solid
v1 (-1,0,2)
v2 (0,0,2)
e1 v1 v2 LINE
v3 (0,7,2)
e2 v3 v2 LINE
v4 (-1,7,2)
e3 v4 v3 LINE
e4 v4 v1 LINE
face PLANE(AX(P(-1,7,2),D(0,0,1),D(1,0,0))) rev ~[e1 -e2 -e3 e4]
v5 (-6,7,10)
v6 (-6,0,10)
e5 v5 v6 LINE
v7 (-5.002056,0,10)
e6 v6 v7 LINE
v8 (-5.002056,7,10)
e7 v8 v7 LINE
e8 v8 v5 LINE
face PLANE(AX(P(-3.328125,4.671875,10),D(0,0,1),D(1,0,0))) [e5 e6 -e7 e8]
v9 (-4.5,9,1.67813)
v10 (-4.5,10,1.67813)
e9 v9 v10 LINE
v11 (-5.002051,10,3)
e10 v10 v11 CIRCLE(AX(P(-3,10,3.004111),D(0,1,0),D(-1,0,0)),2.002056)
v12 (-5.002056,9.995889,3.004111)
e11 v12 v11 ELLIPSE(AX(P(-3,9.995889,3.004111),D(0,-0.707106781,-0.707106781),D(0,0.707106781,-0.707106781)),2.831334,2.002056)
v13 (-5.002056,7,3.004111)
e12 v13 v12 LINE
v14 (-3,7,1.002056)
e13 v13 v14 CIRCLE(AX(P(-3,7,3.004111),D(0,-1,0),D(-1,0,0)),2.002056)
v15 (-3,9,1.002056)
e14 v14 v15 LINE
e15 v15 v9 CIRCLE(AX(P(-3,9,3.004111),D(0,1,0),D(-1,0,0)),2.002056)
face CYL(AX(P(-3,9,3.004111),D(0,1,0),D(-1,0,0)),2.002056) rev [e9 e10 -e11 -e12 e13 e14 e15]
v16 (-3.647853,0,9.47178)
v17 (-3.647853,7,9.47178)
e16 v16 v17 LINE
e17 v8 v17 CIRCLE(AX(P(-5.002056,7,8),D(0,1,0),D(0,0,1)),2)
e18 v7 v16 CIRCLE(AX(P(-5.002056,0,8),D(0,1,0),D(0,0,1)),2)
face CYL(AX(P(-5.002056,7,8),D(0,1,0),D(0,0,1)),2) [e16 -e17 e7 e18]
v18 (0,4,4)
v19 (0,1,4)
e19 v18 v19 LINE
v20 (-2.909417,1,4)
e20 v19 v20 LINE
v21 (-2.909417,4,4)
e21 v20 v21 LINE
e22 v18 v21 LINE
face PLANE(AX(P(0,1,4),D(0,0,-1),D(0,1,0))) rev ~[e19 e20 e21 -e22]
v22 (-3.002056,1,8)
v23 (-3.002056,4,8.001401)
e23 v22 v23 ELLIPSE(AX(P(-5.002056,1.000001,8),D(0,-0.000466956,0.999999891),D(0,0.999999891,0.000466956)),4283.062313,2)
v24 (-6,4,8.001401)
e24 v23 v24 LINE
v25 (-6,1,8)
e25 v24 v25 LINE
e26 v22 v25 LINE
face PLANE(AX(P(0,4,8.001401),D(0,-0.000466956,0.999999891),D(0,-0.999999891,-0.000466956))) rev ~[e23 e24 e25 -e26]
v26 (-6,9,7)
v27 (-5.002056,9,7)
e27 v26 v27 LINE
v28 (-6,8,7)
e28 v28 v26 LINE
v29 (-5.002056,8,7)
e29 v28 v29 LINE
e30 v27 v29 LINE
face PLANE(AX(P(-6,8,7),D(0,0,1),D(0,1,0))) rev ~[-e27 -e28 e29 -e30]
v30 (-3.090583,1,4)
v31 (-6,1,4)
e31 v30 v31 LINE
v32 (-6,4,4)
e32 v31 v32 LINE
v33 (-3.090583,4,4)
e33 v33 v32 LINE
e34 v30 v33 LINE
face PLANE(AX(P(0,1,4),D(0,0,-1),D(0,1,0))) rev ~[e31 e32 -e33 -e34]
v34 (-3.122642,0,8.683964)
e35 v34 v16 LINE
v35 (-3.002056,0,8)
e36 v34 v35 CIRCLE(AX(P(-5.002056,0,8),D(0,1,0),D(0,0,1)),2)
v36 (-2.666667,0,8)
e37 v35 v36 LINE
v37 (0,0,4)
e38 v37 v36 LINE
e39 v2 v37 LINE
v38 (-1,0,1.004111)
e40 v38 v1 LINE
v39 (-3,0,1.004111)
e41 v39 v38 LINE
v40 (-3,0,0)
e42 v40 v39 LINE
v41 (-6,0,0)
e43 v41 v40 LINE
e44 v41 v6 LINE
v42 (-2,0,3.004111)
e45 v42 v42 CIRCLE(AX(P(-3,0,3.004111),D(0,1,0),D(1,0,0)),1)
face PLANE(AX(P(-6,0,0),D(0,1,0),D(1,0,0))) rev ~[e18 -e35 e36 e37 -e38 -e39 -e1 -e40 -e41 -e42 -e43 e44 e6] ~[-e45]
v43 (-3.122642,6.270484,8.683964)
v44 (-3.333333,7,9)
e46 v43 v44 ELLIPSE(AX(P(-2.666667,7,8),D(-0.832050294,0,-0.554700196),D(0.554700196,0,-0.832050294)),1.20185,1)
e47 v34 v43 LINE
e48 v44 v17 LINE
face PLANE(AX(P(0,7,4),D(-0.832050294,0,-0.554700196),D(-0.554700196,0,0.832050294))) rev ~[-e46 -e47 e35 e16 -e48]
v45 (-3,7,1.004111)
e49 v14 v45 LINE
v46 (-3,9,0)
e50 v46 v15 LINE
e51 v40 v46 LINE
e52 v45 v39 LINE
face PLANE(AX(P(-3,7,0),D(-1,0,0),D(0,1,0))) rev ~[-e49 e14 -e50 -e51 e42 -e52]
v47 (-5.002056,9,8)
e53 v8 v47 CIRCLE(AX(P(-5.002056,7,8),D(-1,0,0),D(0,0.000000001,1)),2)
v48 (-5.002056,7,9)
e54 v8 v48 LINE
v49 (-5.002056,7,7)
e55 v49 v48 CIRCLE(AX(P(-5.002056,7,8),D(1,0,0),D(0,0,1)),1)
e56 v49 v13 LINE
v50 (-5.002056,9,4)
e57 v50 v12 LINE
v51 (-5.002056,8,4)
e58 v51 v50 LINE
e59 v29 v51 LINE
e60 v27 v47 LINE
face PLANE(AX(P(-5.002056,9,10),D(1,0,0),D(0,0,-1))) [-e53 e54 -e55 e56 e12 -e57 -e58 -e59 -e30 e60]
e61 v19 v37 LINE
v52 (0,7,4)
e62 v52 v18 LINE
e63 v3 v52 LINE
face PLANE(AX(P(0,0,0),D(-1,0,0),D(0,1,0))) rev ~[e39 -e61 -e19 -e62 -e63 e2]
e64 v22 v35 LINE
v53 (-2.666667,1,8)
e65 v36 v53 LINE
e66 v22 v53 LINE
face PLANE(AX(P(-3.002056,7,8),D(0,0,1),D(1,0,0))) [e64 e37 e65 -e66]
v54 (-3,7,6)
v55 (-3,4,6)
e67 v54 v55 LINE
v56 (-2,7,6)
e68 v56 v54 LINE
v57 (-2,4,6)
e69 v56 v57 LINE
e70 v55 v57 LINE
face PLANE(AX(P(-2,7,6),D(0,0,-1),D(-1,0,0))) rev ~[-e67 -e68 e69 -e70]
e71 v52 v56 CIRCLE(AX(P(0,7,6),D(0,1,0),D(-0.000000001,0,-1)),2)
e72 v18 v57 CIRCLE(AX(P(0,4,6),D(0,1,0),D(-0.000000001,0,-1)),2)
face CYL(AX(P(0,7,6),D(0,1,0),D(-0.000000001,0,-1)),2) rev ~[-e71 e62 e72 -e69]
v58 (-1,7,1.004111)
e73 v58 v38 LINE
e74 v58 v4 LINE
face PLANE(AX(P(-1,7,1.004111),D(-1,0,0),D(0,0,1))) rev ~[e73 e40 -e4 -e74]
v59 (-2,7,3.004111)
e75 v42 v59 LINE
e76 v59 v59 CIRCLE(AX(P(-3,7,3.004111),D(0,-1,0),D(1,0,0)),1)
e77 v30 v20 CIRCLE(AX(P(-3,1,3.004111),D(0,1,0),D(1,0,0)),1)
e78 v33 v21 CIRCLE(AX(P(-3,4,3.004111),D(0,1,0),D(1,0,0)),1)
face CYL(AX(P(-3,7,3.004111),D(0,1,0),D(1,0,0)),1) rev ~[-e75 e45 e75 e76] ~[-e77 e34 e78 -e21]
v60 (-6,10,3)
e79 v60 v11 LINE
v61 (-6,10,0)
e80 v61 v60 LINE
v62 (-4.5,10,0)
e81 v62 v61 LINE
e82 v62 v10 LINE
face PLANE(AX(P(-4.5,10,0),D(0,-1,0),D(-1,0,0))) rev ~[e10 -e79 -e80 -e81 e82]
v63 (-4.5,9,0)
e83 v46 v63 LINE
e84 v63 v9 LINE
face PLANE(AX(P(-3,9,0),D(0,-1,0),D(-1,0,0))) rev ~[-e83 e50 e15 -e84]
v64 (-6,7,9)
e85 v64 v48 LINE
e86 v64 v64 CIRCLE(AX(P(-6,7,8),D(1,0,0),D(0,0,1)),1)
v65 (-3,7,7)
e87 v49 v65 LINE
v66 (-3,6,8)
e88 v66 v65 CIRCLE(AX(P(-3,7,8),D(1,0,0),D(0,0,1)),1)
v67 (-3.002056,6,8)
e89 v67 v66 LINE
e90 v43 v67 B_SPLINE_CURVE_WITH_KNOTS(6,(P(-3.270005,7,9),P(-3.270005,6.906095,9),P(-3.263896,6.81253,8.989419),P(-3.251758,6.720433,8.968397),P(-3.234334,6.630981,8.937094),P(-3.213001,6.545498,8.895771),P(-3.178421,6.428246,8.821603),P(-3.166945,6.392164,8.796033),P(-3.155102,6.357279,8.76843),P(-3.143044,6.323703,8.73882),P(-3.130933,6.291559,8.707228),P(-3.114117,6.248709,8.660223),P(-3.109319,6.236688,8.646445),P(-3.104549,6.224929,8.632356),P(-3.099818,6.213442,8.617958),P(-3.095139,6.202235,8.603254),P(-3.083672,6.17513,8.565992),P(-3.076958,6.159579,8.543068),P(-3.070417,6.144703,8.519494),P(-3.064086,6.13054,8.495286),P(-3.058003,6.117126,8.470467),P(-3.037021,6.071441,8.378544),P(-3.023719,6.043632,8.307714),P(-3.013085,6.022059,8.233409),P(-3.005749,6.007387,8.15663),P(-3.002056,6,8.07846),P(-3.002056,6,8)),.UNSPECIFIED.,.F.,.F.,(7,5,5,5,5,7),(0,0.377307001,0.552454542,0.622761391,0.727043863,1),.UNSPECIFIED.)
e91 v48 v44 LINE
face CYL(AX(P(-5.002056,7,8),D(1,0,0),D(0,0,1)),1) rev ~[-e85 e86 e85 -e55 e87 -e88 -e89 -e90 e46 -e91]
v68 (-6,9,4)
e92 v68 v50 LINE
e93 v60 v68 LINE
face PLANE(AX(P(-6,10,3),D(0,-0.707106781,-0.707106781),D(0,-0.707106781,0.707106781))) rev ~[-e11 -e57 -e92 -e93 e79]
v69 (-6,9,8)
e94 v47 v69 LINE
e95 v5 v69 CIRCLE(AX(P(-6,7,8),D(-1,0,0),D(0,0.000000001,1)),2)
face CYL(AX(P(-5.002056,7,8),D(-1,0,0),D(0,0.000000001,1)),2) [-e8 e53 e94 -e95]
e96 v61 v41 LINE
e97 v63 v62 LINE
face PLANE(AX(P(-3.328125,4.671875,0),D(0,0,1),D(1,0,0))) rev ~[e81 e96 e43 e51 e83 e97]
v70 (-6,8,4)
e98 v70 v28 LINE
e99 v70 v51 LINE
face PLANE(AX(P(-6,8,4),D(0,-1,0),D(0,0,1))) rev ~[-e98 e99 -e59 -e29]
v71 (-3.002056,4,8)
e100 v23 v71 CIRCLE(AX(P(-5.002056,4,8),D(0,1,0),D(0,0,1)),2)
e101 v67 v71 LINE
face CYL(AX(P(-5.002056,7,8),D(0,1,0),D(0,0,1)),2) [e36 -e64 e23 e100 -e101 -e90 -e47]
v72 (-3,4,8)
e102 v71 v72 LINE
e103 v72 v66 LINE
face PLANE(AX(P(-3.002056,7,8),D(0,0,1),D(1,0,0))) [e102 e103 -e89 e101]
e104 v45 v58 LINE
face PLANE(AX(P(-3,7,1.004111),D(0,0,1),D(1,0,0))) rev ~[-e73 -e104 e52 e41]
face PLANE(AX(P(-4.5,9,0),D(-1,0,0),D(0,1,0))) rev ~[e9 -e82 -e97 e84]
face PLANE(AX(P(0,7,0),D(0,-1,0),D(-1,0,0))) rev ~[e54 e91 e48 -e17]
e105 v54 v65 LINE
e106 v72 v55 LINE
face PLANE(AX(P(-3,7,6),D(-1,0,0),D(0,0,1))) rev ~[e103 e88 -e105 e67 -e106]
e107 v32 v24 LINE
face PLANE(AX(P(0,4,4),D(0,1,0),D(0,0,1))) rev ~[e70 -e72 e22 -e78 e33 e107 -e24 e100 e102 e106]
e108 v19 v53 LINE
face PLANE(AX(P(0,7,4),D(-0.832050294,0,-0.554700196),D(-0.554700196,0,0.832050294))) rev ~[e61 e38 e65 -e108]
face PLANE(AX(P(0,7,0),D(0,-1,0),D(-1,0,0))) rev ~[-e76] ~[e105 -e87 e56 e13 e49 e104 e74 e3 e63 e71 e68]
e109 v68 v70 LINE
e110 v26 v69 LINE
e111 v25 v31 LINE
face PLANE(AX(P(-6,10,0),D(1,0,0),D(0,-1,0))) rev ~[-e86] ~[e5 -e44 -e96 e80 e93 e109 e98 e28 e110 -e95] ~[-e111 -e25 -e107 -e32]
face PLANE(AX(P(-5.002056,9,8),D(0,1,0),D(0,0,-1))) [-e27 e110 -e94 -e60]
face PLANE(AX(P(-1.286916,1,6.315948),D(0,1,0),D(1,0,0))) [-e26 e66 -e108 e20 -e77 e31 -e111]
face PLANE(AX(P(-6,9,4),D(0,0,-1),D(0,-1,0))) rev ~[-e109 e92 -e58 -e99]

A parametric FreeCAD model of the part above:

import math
import FreeCAD as App
import Part
import Sketcher
Q = App.Units.Quantity

doc = App.newDocument("Part")
body = doc.addObject("PartDesign::Body", "Body")
body.AllowCompound = True

# Sketch on XY plane
sketch1 = body.newObject("Sketcher::SketchObject", "Sketch")
sketch1.AttachmentSupport = (doc.getObject("XY_Plane"), [""])
sketch1.MapMode = "FlatFace"
sketch1.addGeometry(Part.LineSegment(App.Vector(0, 0, 0), App.Vector(0, 7, 0)), False)
sketch1.addGeometry(Part.LineSegment(App.Vector(0, 7, 0), App.Vector(-3, 7, 0)), False)
sketch1.addGeometry(Part.LineSegment(App.Vector(-3, 7, 0), App.Vector(-3, 9, 0)), False)
sketch1.addGeometry(Part.LineSegment(App.Vector(-3, 9, 0), App.Vector(-4.5, 9, 0)), False)
sketch1.addGeometry(Part.LineSegment(App.Vector(-4.5, 9, 0), App.Vector(-4.5, 10, 0)), False)
sketch1.addGeometry(Part.LineSegment(App.Vector(-4.5, 10, 0), App.Vector(-6, 10, 0)), False)
sketch1.addGeometry(Part.LineSegment(App.Vector(-6, 10, 0), App.Vector(-6, 0, 0)), False)
sketch1.addGeometry(Part.LineSegment(App.Vector(-6, 0, 0), App.Vector(0, 0, 0)), False)
sketch1.addConstraint(Sketcher.Constraint("Coincident", 0, 2, 1, 1))
sketch1.addConstraint(Sketcher.Constraint("Coincident", 1, 2, 2, 1))
sketch1.addConstraint(Sketcher.Constraint("Coincident", 2, 2, 3, 1))
sketch1.addConstraint(Sketcher.Constraint("Coincident", 3, 2, 4, 1))
sketch1.addConstraint(Sketcher.Constraint("Coincident", 4, 2, 5, 1))
sketch1.addConstraint(Sketcher.Constraint("Coincident", 5, 2, 6, 1))
sketch1.addConstraint(Sketcher.Constraint("Coincident", 6, 2, 7, 1))
sketch1.addConstraint(Sketcher.Constraint("Coincident", 7, 2, 0, 1))
sketch1.addConstraint(Sketcher.Constraint("Vertical", 0))
sketch1.addConstraint(Sketcher.Constraint("Horizontal", 1))
sketch1.addConstraint(Sketcher.Constraint("Vertical", 2))
sketch1.addConstraint(Sketcher.Constraint("Horizontal", 3))
sketch1.addConstraint(Sketcher.Constraint("Vertical", 4))
sketch1.addConstraint(Sketcher.Constraint("Horizontal", 5))
sketch1.addConstraint(Sketcher.Constraint("Vertical", 6))
sketch1.addConstraint(Sketcher.Constraint("Horizontal", 7))
sketch1.addConstraint(Sketcher.Constraint("Coincident", 7, 2, -1, 1))
sketch1.addConstraint(Sketcher.Constraint("Equal", 3, 5))
sketch1.addConstraint(Sketcher.Constraint("DistanceX", 1, 2, 1, 1, Q("3 mm")))
sketch1.addConstraint(Sketcher.Constraint("DistanceX", 7, 1, 7, 2, Q("6 mm")))
sketch1.addConstraint(Sketcher.Constraint("DistanceY", 0, 1, 0, 2, Q("7 mm")))
sketch1.addConstraint(Sketcher.Constraint("DistanceY", 2, 1, 2, 2, Q("2 mm")))
sketch1.addConstraint(Sketcher.Constraint("DistanceY", 4, 1, 4, 2, Q("1 mm")))
pad1 = body.newObject("PartDesign::Pad", "Pad")
pad1.Profile = sketch1
pad1.Length = 10

# Sketch on XZ plane
sketch2 = body.newObject("Sketcher::SketchObject", "Sketch001")
sketch2.AttachmentSupport = (doc.getObject("XZ_Plane"), [""])
sketch2.MapMode = "FlatFace"
sketch2.AttachmentOffset = App.Placement(App.Vector(0, 0, -7), App.Rotation())
sketch2.addGeometry(Part.LineSegment(App.Vector(-3, 0, 0), App.Vector(-3, 1, 0)), False)
sketch2.addGeometry(Part.LineSegment(App.Vector(-3, 1, 0), App.Vector(-1, 1, 0)), False)
sketch2.addGeometry(Part.LineSegment(App.Vector(-1, 1, 0), App.Vector(-1, 2, 0)), False)
sketch2.addGeometry(Part.LineSegment(App.Vector(-1, 2, 0), App.Vector(0, 2, 0)), False)
sketch2.addGeometry(Part.LineSegment(App.Vector(0, 2, 0), App.Vector(0, 0, 0)), False)
sketch2.addGeometry(Part.LineSegment(App.Vector(0, 0, 0), App.Vector(-3, 0, 0)), False)
sketch2.addConstraint(Sketcher.Constraint("Coincident", 0, 2, 1, 1))
sketch2.addConstraint(Sketcher.Constraint("Coincident", 1, 2, 2, 1))
sketch2.addConstraint(Sketcher.Constraint("Coincident", 2, 2, 3, 1))
sketch2.addConstraint(Sketcher.Constraint("Coincident", 3, 2, 4, 1))
sketch2.addConstraint(Sketcher.Constraint("Coincident", 4, 2, 5, 1))
sketch2.addConstraint(Sketcher.Constraint("Coincident", 5, 2, 0, 1))
sketch2.addConstraint(Sketcher.Constraint("Vertical", 0))
sketch2.addConstraint(Sketcher.Constraint("Horizontal", 1))
sketch2.addConstraint(Sketcher.Constraint("Vertical", 2))
sketch2.addConstraint(Sketcher.Constraint("Horizontal", 3))
sketch2.addConstraint(Sketcher.Constraint("Vertical", 4))
sketch2.addConstraint(Sketcher.Constraint("Horizontal", 5))
sketch2.addConstraint(Sketcher.Constraint("Coincident", 4, 2, -1, 1))
sketch2.addConstraint(Sketcher.Constraint("Equal", 1, 4))
sketch2.addConstraint(Sketcher.Constraint("DistanceX", 1, 1, 1, 2, Q("2 mm")))
sketch2.addConstraint(Sketcher.Constraint("DistanceX", 3, 1, 3, 2, Q("1 mm")))
sketch2.addConstraint(Sketcher.Constraint("DistanceY", 0, 1, 0, 2, Q("1.004111 mm")))
pocket1 = body.newObject("PartDesign::Pocket", "Pocket")
pocket1.Profile = sketch2
pocket1.Type = "ThroughAll"
pocket1.Reversed = True

# Sketch on XZ plane
sketch3 = body.newObject("Sketcher::SketchObject", "Sketch002")
sketch3.AttachmentSupport = (doc.getObject("XZ_Plane"), [""])
sketch3.MapMode = "FlatFace"
sketch3.AttachmentOffset = App.Placement(App.Vector(0, 0, -7), App.Rotation())
sketch3.addGeometry(Part.Circle(App.Vector(-3, 3, 0), App.Vector(0, 0, 1), 1), False)
sketch3.addConstraint(Sketcher.Constraint("Diameter", 0, Q("2 mm")))
sketch3.addConstraint(Sketcher.Constraint("DistanceX", 0, 3, -1, 1, Q("3 mm")))
sketch3.addConstraint(Sketcher.Constraint("DistanceY", -1, 1, 0, 3, Q("3.004111 mm")))
pocket2 = body.newObject("PartDesign::Pocket", "Pocket001")
pocket2.Profile = sketch3
pocket2.Length = 15
pocket2.Midplane = True

# Sketch on XZ plane
sketch4 = body.newObject("Sketcher::SketchObject", "Sketch003")
sketch4.AttachmentSupport = (doc.getObject("XZ_Plane"), [""])
sketch4.MapMode = "FlatFace"
sketch4.AttachmentOffset = App.Placement(App.Vector(0, 0, -9), App.Rotation())
sketch4.addGeometry(Part.LineSegment(App.Vector(-3, 2, 0), App.Vector(-3, 1, 0)), False)
sketch4.addGeometry(Part.ArcOfCircle(Part.Circle(App.Vector(-3, 3, 0), App.Vector(0, 0, 1), 2), math.radians(180), math.radians(270)), False)
sketch4.addGeometry(Part.LineSegment(App.Vector(-5, 3, 0), App.Vector(-5, 10, 0)), False)
sketch4.addGeometry(Part.LineSegment(App.Vector(-5, 10, 0), App.Vector(-3, 10, 0)), False)
sketch4.addGeometry(Part.LineSegment(App.Vector(-3, 10, 0), App.Vector(-3, 4, 0)), False)
sketch4.addGeometry(Part.ArcOfCircle(Part.Circle(App.Vector(-3, 3, 0), App.Vector(0, 0, 1), 1), math.radians(90), math.radians(270)), False)
sketch4.addConstraint(Sketcher.Constraint("Coincident", 0, 2, 1, 2))
sketch4.addConstraint(Sketcher.Constraint("Tangent", 1, 1, 2, 1))
sketch4.addConstraint(Sketcher.Constraint("Coincident", 2, 2, 3, 1))
sketch4.addConstraint(Sketcher.Constraint("Coincident", 3, 2, 4, 1))
sketch4.addConstraint(Sketcher.Constraint("Coincident", 4, 2, 5, 1))
sketch4.addConstraint(Sketcher.Constraint("Coincident", 5, 2, 0, 1))
sketch4.addConstraint(Sketcher.Constraint("Vertical", 0))
sketch4.addConstraint(Sketcher.Constraint("Vertical", 2))
sketch4.addConstraint(Sketcher.Constraint("Horizontal", 3))
sketch4.addConstraint(Sketcher.Constraint("Vertical", 4))
sketch4.addConstraint(Sketcher.Constraint("Coincident", 5, 3, 1, 3))
sketch4.addConstraint(Sketcher.Constraint("Vertical", 5, 3, 0, 2))
sketch4.addConstraint(Sketcher.Constraint("Vertical", 0, 2, 3, 2))
sketch4.addConstraint(Sketcher.Constraint("Radius", 5, Q("1 mm")))
sketch4.addConstraint(Sketcher.Constraint("DistanceX", 1, 3, -1, 1, Q("3 mm")))
sketch4.addConstraint(Sketcher.Constraint("DistanceY", -1, 1, 2, 2, Q("10 mm")))
sketch4.addConstraint(Sketcher.Constraint("Radius", 1, Q("2.002056 mm")))
sketch4.addConstraint(Sketcher.Constraint("DistanceY", 2, 1, 2, 2, Q("6.995889 mm")))
pocket3 = body.newObject("PartDesign::Pocket", "Pocket002")
pocket3.Profile = sketch4
pocket3.Length = 4
pocket3.Midplane = True

# Sketch on YZ plane
sketch5 = body.newObject("Sketcher::SketchObject", "Sketch004")
sketch5.AttachmentSupport = (doc.getObject("YZ_Plane"), [""])
sketch5.MapMode = "FlatFace"
sketch5.AttachmentOffset = App.Placement(App.Vector(0, 0, -6), App.Rotation())
sketch5.addGeometry(Part.LineSegment(App.Vector(10, 3, 0), App.Vector(9, 4, 0)), False)
sketch5.addGeometry(Part.LineSegment(App.Vector(9, 4, 0), App.Vector(8, 4, 0)), False)
sketch5.addGeometry(Part.LineSegment(App.Vector(8, 4, 0), App.Vector(8, 7, 0)), False)
sketch5.addGeometry(Part.LineSegment(App.Vector(8, 7, 0), App.Vector(10, 7, 0)), False)
sketch5.addGeometry(Part.LineSegment(App.Vector(10, 7, 0), App.Vector(10, 3, 0)), False)
sketch5.addConstraint(Sketcher.Constraint("Coincident", 0, 2, 1, 1))
sketch5.addConstraint(Sketcher.Constraint("Coincident", 1, 2, 2, 1))
sketch5.addConstraint(Sketcher.Constraint("Coincident", 2, 2, 3, 1))
sketch5.addConstraint(Sketcher.Constraint("Coincident", 3, 2, 4, 1))
sketch5.addConstraint(Sketcher.Constraint("Coincident", 4, 2, 0, 1))
sketch5.addConstraint(Sketcher.Constraint("Horizontal", 1))
sketch5.addConstraint(Sketcher.Constraint("Vertical", 2))
sketch5.addConstraint(Sketcher.Constraint("Horizontal", 3))
sketch5.addConstraint(Sketcher.Constraint("Vertical", 4))
sketch5.addConstraint(Sketcher.Constraint("DistanceX", 1, 2, 1, 1, Q("1 mm")))
sketch5.addConstraint(Sketcher.Constraint("DistanceX", 3, 1, 3, 2, Q("2 mm")))
sketch5.addConstraint(Sketcher.Constraint("DistanceY", 2, 1, 2, 2, Q("3 mm")))
sketch5.addConstraint(Sketcher.Constraint("DistanceY", 4, 2, 4, 1, Q("4 mm")))
sketch5.addConstraint(Sketcher.Constraint("DistanceX", -1, 1, 0, 2, Q("9 mm")))
sketch5.addConstraint(Sketcher.Constraint("DistanceY", -1, 1, 0, 2, Q("4 mm")))
pocket4 = body.newObject("PartDesign::Pocket", "Pocket003")
pocket4.Profile = sketch5
pocket4.Length = 4
pocket4.Reversed = True

# Sketch on YZ plane
sketch6 = body.newObject("Sketcher::SketchObject", "Sketch005")
sketch6.AttachmentSupport = (doc.getObject("YZ_Plane"), [""])
sketch6.MapMode = "FlatFace"
sketch6.AttachmentOffset = App.Placement(App.Vector(0, 0, -5.002056), App.Rotation())
sketch6.addGeometry(Part.LineSegment(App.Vector(9, 8, 0), App.Vector(9, 7, 0)), False)
sketch6.addGeometry(Part.LineSegment(App.Vector(9, 7, 0), App.Vector(10, 7, 0)), False)
sketch6.addGeometry(Part.LineSegment(App.Vector(10, 7, 0), App.Vector(10, 10, 0)), False)
sketch6.addGeometry(Part.LineSegment(App.Vector(10, 10, 0), App.Vector(7, 10, 0)), False)
sketch6.addGeometry(Part.ArcOfCircle(Part.Circle(App.Vector(7, 8, 0), App.Vector(0, 0, 1), 2), math.radians(0), math.radians(90)), False)
sketch6.addGeometry(Part.Circle(App.Vector(7, 8, 0), App.Vector(0, 0, 1), 1), False)
sketch6.addConstraint(Sketcher.Constraint("Coincident", 0, 2, 1, 1))
sketch6.addConstraint(Sketcher.Constraint("Coincident", 1, 2, 2, 1))
sketch6.addConstraint(Sketcher.Constraint("Coincident", 2, 2, 3, 1))
sketch6.addConstraint(Sketcher.Constraint("Tangent", 3, 2, 4, 2))
sketch6.addConstraint(Sketcher.Constraint("Tangent", 4, 1, 0, 1))
sketch6.addConstraint(Sketcher.Constraint("Vertical", 0))
sketch6.addConstraint(Sketcher.Constraint("Horizontal", 1))
sketch6.addConstraint(Sketcher.Constraint("Vertical", 2))
sketch6.addConstraint(Sketcher.Constraint("Horizontal", 3))
sketch6.addConstraint(Sketcher.Constraint("Coincident", 5, 3, 4, 3))
sketch6.addConstraint(Sketcher.Constraint("Equal", 1, 0))
sketch6.addConstraint(Sketcher.Constraint("Diameter", 5, Q("2 mm")))
sketch6.addConstraint(Sketcher.Constraint("Radius", 4, Q("2 mm")))
sketch6.addConstraint(Sketcher.Constraint("DistanceX", 1, 1, 1, 2, Q("1 mm")))
sketch6.addConstraint(Sketcher.Constraint("DistanceX", -1, 1, 4, 3, Q("7 mm")))
sketch6.addConstraint(Sketcher.Constraint("DistanceY", -1, 1, 4, 3, Q("8 mm")))
pocket5 = body.newObject("PartDesign::Pocket", "Pocket004")
pocket5.Profile = sketch6
pocket5.Length = 14
pocket5.Midplane = True

# Sketch on XZ plane
sketch7 = body.newObject("Sketcher::SketchObject", "Sketch006")
sketch7.AttachmentSupport = (doc.getObject("XZ_Plane"), [""])
sketch7.MapMode = "FlatFace"
sketch7.AttachmentOffset = App.Placement(App.Vector(0, 0, -7), App.Rotation())
sketch7.addGeometry(Part.LineSegment(App.Vector(-2, 6, 0), App.Vector(-3, 6, 0)), False)
sketch7.addGeometry(Part.LineSegment(App.Vector(-3, 6, 0), App.Vector(-3, 8, 0)), False)
sketch7.addGeometry(Part.LineSegment(App.Vector(-3, 8, 0), App.Vector(0, 8, 0)), False)
sketch7.addGeometry(Part.LineSegment(App.Vector(0, 8, 0), App.Vector(0, 4, 0)), False)
sketch7.addGeometry(Part.ArcOfCircle(Part.Circle(App.Vector(0, 6, 0), App.Vector(0, 0, 1), 2), math.radians(-180), math.radians(-90)), False)
sketch7.addConstraint(Sketcher.Constraint("Coincident", 0, 2, 1, 1))
sketch7.addConstraint(Sketcher.Constraint("Coincident", 1, 2, 2, 1))
sketch7.addConstraint(Sketcher.Constraint("Coincident", 2, 2, 3, 1))
sketch7.addConstraint(Sketcher.Constraint("Coincident", 3, 2, 4, 2))
sketch7.addConstraint(Sketcher.Constraint("Coincident", 4, 1, 0, 1))
sketch7.addConstraint(Sketcher.Constraint("Horizontal", 0))
sketch7.addConstraint(Sketcher.Constraint("Vertical", 1))
sketch7.addConstraint(Sketcher.Constraint("Vertical", 3))
sketch7.addConstraint(Sketcher.Constraint("PointOnObject", 4, 3, -2))
sketch7.addConstraint(Sketcher.Constraint("PointOnObject", 2, 2, -2))
sketch7.addConstraint(Sketcher.Constraint("Horizontal", 4, 3, 0, 2))
sketch7.addConstraint(Sketcher.Constraint("Radius", 4, Q("2 mm")))
sketch7.addConstraint(Sketcher.Constraint("DistanceX", 0, 2, 0, 1, Q("1 mm")))
sketch7.addConstraint(Sketcher.Constraint("DistanceY", 3, 2, 3, 1, Q("4 mm")))
sketch7.addConstraint(Sketcher.Constraint("DistanceY", -1, 1, 4, 3, Q("6 mm")))
sketch7.addConstraint(Sketcher.Constraint("DistanceY", 1, 1, 1, 2, Q("2.001401 mm")))
pocket6 = body.newObject("PartDesign::Pocket", "Pocket005")
pocket6.Profile = sketch7
pocket6.Length = 6
pocket6.Reversed = True

# Sketch on YZ plane
sketch8 = body.newObject("Sketcher::SketchObject", "Sketch007")
sketch8.AttachmentSupport = (doc.getObject("YZ_Plane"), [""])
sketch8.MapMode = "FlatFace"
sketch8.addGeometry(Part.LineSegment(App.Vector(1, 4, 0), App.Vector(4, 4, 0)), False)
sketch8.addGeometry(Part.LineSegment(App.Vector(4, 4, 0), App.Vector(4, 8, 0)), False)
sketch8.addGeometry(Part.LineSegment(App.Vector(4, 8, 0), App.Vector(1, 8, 0)), False)
sketch8.addGeometry(Part.LineSegment(App.Vector(1, 8, 0), App.Vector(1, 4, 0)), False)
sketch8.addConstraint(Sketcher.Constraint("Coincident", 0, 2, 1, 1))
sketch8.addConstraint(Sketcher.Constraint("Coincident", 1, 2, 2, 1))
sketch8.addConstraint(Sketcher.Constraint("Coincident", 2, 2, 3, 1))
sketch8.addConstraint(Sketcher.Constraint("Coincident", 3, 2, 0, 1))
sketch8.addConstraint(Sketcher.Constraint("Horizontal", 0))
sketch8.addConstraint(Sketcher.Constraint("Vertical", 1))
sketch8.addConstraint(Sketcher.Constraint("Vertical", 3))
sketch8.addConstraint(Sketcher.Constraint("DistanceX", 0, 1, 0, 2, Q("3 mm")))
sketch8.addConstraint(Sketcher.Constraint("DistanceY", 3, 2, 3, 1, Q("4 mm")))
sketch8.addConstraint(Sketcher.Constraint("DistanceX", -1, 1, 0, 2, Q("4 mm")))
sketch8.addConstraint(Sketcher.Constraint("DistanceY", -1, 1, 0, 2, Q("4 mm")))
sketch8.addConstraint(Sketcher.Constraint("DistanceY", 1, 1, 1, 2, Q("4.001401 mm")))
pocket7 = body.newObject("PartDesign::Pocket", "Pocket006")
pocket7.Profile = sketch8
pocket7.Type = "ThroughAll"

# Sketch on YZ plane
sketch9 = body.newObject("Sketcher::SketchObject", "Sketch008")
sketch9.AttachmentSupport = (doc.getObject("YZ_Plane"), [""])
sketch9.MapMode = "FlatFace"
sketch9.addGeometry(Part.LineSegment(App.Vector(7, 10, 0), App.Vector(2.5, 10, 0)), False)
sketch9.addGeometry(Part.LineSegment(App.Vector(2.5, 10, 0), App.Vector(2.5, 8, 0)), False)
sketch9.addGeometry(Part.LineSegment(App.Vector(2.5, 8, 0), App.Vector(7, 8, 0)), False)
sketch9.addGeometry(Part.LineSegment(App.Vector(7, 8, 0), App.Vector(7, 10, 0)), False)
sketch9.addConstraint(Sketcher.Constraint("Coincident", 0, 2, 1, 1))
sketch9.addConstraint(Sketcher.Constraint("Coincident", 1, 2, 2, 1))
sketch9.addConstraint(Sketcher.Constraint("Coincident", 2, 2, 3, 1))
sketch9.addConstraint(Sketcher.Constraint("Coincident", 3, 2, 0, 1))
sketch9.addConstraint(Sketcher.Constraint("Horizontal", 0))
sketch9.addConstraint(Sketcher.Constraint("Vertical", 1))
sketch9.addConstraint(Sketcher.Constraint("Horizontal", 2))
sketch9.addConstraint(Sketcher.Constraint("Vertical", 3))
sketch9.addConstraint(Sketcher.Constraint("DistanceX", 0, 2, 0, 1, Q("4.5 mm")))
sketch9.addConstraint(Sketcher.Constraint("DistanceY", -1, 1, 0, 2, Q("10 mm")))
sketch9.addConstraint(Sketcher.Constraint("DistanceX", -1, 1, 2, 2, Q("7 mm")))
sketch9.addConstraint(Sketcher.Constraint("DistanceY", 1, 2, 1, 1, Q("1.9993 mm")))
pocket8 = body.newObject("PartDesign::Pocket", "Pocket007")
pocket8.Profile = sketch9
pocket8.Length = 2

# Sketch on XY plane
sketch10 = body.newObject("Sketcher::SketchObject", "Sketch009")
sketch10.AttachmentSupport = (doc.getObject("XY_Plane"), [""])
sketch10.MapMode = "FlatFace"
sketch10.AttachmentOffset = App.Placement(App.Vector(0, 0, 8.0007), App.Rotation())
sketch10.addGeometry(Part.LineSegment(App.Vector(0, 6, 0), App.Vector(-1.5, 6, 0)), False)
sketch10.addGeometry(Part.LineSegment(App.Vector(-1.5, 6, 0), App.Vector(-1.5, 4, 0)), False)
sketch10.addGeometry(Part.LineSegment(App.Vector(-1.5, 4, 0), App.Vector(0, 4, 0)), False)
sketch10.addGeometry(Part.LineSegment(App.Vector(0, 4, 0), App.Vector(0, 6, 0)), False)
sketch10.addConstraint(Sketcher.Constraint("Coincident", 0, 2, 1, 1))
sketch10.addConstraint(Sketcher.Constraint("Coincident", 1, 2, 2, 1))
sketch10.addConstraint(Sketcher.Constraint("Coincident", 2, 2, 3, 1))
sketch10.addConstraint(Sketcher.Constraint("Coincident", 3, 2, 0, 1))
sketch10.addConstraint(Sketcher.Constraint("Horizontal", 0))
sketch10.addConstraint(Sketcher.Constraint("Vertical", 1))
sketch10.addConstraint(Sketcher.Constraint("Horizontal", 2))
sketch10.addConstraint(Sketcher.Constraint("Vertical", 3))
sketch10.addConstraint(Sketcher.Constraint("PointOnObject", 2, 2, -2))
sketch10.addConstraint(Sketcher.Constraint("DistanceY", 1, 2, 1, 1, Q("2.000001 mm")))
sketch10.addConstraint(Sketcher.Constraint("DistanceX", 0, 2, 0, 1, Q("1.5 mm")))
sketch10.addConstraint(Sketcher.Constraint("DistanceY", -1, 1, 0, 2, Q("6.000001 mm")))
pocket9 = body.newObject("PartDesign::Pocket", "Pocket008")
pocket9.Profile = sketch10
pocket9.Length = 2

# Sketch on XZ plane
sketch11 = body.newObject("Sketcher::SketchObject", "Sketch010")
sketch11.AttachmentSupport = (doc.getObject("XZ_Plane"), [""])
sketch11.MapMode = "FlatFace"
sketch11.AttachmentOffset = App.Placement(App.Vector(0, 0, -7), App.Rotation())
sketch11.addGeometry(Part.LineSegment(App.Vector(0, 4, 0), App.Vector(-4, 10, 0)), False)
sketch11.addGeometry(Part.LineSegment(App.Vector(-4, 10, 0), App.Vector(0, 10, 0)), False)
sketch11.addGeometry(Part.LineSegment(App.Vector(0, 10, 0), App.Vector(0, 4, 0)), False)
sketch11.addConstraint(Sketcher.Constraint("Coincident", 0, 2, 1, 1))
sketch11.addConstraint(Sketcher.Constraint("Coincident", 1, 2, 2, 1))
sketch11.addConstraint(Sketcher.Constraint("Coincident", 2, 2, 0, 1))
sketch11.addConstraint(Sketcher.Constraint("Horizontal", 1))
sketch11.addConstraint(Sketcher.Constraint("Vertical", 2))
sketch11.addConstraint(Sketcher.Constraint("PointOnObject", 1, 2, -2))
sketch11.addConstraint(Sketcher.Constraint("DistanceX", 1, 1, 1, 2, Q("4 mm")))
sketch11.addConstraint(Sketcher.Constraint("DistanceY", 2, 2, 2, 1, Q("6 mm")))
sketch11.addConstraint(Sketcher.Constraint("DistanceY", -1, 1, 0, 2, Q("10 mm")))
pocket10 = body.newObject("PartDesign::Pocket", "Pocket009")
pocket10.Profile = sketch11
pocket10.Length = 7
pocket10.Reversed = True

# Sketch on XZ plane
sketch12 = body.newObject("Sketcher::SketchObject", "Sketch011")
sketch12.AttachmentSupport = (doc.getObject("XZ_Plane"), [""])
sketch12.MapMode = "FlatFace"
sketch12.AttachmentOffset = App.Placement(App.Vector(0, 0, -7), App.Rotation())
sketch12.addGeometry(Part.LineSegment(App.Vector(-0.7, 8, 0), App.Vector(-3, 8, 0)), False)
sketch12.addGeometry(Part.ArcOfCircle(Part.Circle(App.Vector(-5, 8, 0), App.Vector(0, 0, 1), 2), math.radians(0), math.radians(90)), False)
sketch12.addGeometry(Part.LineSegment(App.Vector(-5, 10, 0), App.Vector(-5.2, 11, 0)), False)
sketch12.addGeometry(Part.LineSegment(App.Vector(-5.2, 11, 0), App.Vector(-0.7, 11, 0)), False)
sketch12.addGeometry(Part.LineSegment(App.Vector(-0.7, 11, 0), App.Vector(-0.7, 8, 0)), False)
sketch12.addConstraint(Sketcher.Constraint("Coincident", 0, 2, 1, 1))
sketch12.addConstraint(Sketcher.Constraint("Coincident", 1, 2, 2, 1))
sketch12.addConstraint(Sketcher.Constraint("Coincident", 2, 2, 3, 1))
sketch12.addConstraint(Sketcher.Constraint("Coincident", 3, 2, 4, 1))
sketch12.addConstraint(Sketcher.Constraint("Coincident", 4, 2, 0, 1))
sketch12.addConstraint(Sketcher.Constraint("Horizontal", 0))
sketch12.addConstraint(Sketcher.Constraint("Horizontal", 3))
sketch12.addConstraint(Sketcher.Constraint("Vertical", 4))
sketch12.addConstraint(Sketcher.Constraint("Horizontal", 1, 3, 0, 2))
sketch12.addConstraint(Sketcher.Constraint("Radius", 1, Q("2 mm")))
sketch12.addConstraint(Sketcher.Constraint("DistanceY", -1, 1, 1, 3, Q("8 mm")))
sketch12.addConstraint(Sketcher.Constraint("DistanceX", 1, 2, 0, 2, Q("2 mm")))
sketch12.addConstraint(Sketcher.Constraint("DistanceX", 0, 2, 0, 1, Q("2.333709 mm")))
sketch12.addConstraint(Sketcher.Constraint("DistanceX", 3, 1, 3, 2, Q("4.488229 mm")))
sketch12.addConstraint(Sketcher.Constraint("DistanceY", 4, 2, 4, 1, Q("2.987105 mm")))
sketch12.addConstraint(Sketcher.Constraint("DistanceX", 1, 3, -1, 1, Q("5.002056 mm")))
pocket11 = body.newObject("PartDesign::Pocket", "Pocket010")
pocket11.Profile = sketch12
pocket11.Length = 10
pocket11.Reversed = True

doc.recompute()
